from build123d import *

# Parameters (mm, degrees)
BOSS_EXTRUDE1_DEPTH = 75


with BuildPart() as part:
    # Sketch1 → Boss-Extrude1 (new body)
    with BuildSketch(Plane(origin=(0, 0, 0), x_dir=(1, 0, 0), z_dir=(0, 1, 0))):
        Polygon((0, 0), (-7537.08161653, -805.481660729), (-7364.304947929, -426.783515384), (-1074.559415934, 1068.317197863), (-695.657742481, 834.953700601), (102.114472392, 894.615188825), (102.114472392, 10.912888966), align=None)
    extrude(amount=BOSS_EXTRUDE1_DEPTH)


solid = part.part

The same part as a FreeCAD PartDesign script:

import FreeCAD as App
import Part
import Sketcher
Q = App.Units.Quantity


def add_polygon(sketch, points):
    """Adds a closed chain of lines whose ends are joined by coincident constraints."""
    first, n = sketch.GeometryCount, len(points)
    for a, b in zip(points, points[1:] + points[:1]):
        sketch.addGeometry(Part.LineSegment(App.Vector(*a, 0), App.Vector(*b, 0)), False)
    for i in range(n):
        sketch.addConstraint(Sketcher.Constraint("Coincident", first + i, 2, first + (i + 1) % n, 1))

doc = App.newDocument("Part")
params = doc.addObject("Spreadsheet::Sheet", "Params")
for row, (alias, value) in enumerate([
    ("sketch1_length", "7580 mm"),
    ("sketch1_length2", "800 mm"),
    ("sketch1_length3", "445 mm"),
    ("sketch1_length4", "6465 mm"),
    ("sketch1_length5", "416.25 mm"),
    ("pad1_length", "75 mm"),
], start=1):
    params.set(f"A{row}", alias)
    params.set(f"B{row}", "=" + value)
    params.setAlias(f"B{row}", alias)

body = doc.addObject("PartDesign::Body", "Body")

# Sketch on XZ plane
sketch1 = body.newObject("Sketcher::SketchObject", "Sketch")
sketch1.AttachmentSupport = (doc.getObject("XZ_Plane"), [""])
sketch1.MapMode = "FlatFace"
add_polygon(sketch1, [(-7537.081617, 805.481661), (0, 0), (102.114472, -10.912889), (102.114472, -894.615189), (-695.657742, -834.953701), (-1074.559416, -1068.317198), (-7364.304948, 426.783515)])  # lines 0-6
sketch1.addConstraint([
    Sketcher.Constraint("Vertical", 2),
    Sketcher.Constraint("Coincident", 0, 2, -1, 1),
    Sketcher.Constraint("Parallel", 0, 1),
    Sketcher.Constraint("Distance", 0, 7580.0),
    Sketcher.Constraint("Distance", 3, 800.0),
    Sketcher.Constraint("Distance", 4, 445.0),
    Sketcher.Constraint("Distance", 5, 6465.0),
    Sketcher.Constraint("Angle", 0, Q("-6.1 deg")),
    Sketcher.Constraint("Distance", 6, 416.25),
    Sketcher.Constraint("DistanceY", 2, 2, 2, 1, 883.7023),
    Sketcher.Constraint("DistanceY", 3, 2, -1, 1, 834.953701),
    Sketcher.Constraint("DistanceX", 6, 2, 4, 2, 6462.522201),
    Sketcher.Constraint("DistanceY", 1, 2, -1, 1, 10.912889),
])
sketch1.setExpression("Constraints[10]", "Params.sketch1_length")
sketch1.setExpression("Constraints[11]", "Params.sketch1_length2")
sketch1.setExpression("Constraints[12]", "Params.sketch1_length3")
sketch1.setExpression("Constraints[13]", "Params.sketch1_length4")
sketch1.setExpression("Constraints[15]", "Params.sketch1_length5")
pad1 = body.newObject("PartDesign::Pad", "Pad")
pad1.Profile = sketch1
pad1.setExpression("Length", "Params.pad1_length")
pad1.Reversed = True

doc.recompute()
